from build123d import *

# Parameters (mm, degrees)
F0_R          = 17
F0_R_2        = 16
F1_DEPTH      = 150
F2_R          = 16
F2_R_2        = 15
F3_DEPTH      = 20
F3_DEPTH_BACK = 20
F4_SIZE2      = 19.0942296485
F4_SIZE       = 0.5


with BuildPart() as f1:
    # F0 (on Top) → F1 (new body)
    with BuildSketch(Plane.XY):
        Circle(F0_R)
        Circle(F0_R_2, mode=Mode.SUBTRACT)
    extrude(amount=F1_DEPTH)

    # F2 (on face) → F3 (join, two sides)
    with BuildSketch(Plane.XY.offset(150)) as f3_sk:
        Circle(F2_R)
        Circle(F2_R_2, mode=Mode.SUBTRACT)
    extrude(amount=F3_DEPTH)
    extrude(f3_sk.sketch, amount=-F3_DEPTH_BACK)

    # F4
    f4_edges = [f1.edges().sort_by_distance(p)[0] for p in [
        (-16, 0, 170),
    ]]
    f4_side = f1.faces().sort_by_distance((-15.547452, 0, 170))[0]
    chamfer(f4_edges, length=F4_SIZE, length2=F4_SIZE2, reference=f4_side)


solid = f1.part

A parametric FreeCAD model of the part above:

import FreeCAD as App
import Part
import Sketcher
from FreeCAD import Vector


def edges_at(feature, points):
    """Names of the edges that pass closest to the given points."""
    edges = feature.Shape.Edges
    near = lambda p: min(range(len(edges)), key=lambda i: edges[i].distToShape(Part.Vertex(*p))[0])
    return sorted({f"Edge{near(p) + 1}" for p in points})

doc = App.newDocument("Part")
body = doc.addObject("PartDesign::Body", "Body")

# Sketch on XY plane
sketch1 = body.newObject("Sketcher::SketchObject", "Sketch")
sketch1.AttachmentSupport = (doc.getObject("XY_Plane"), [""])
sketch1.MapMode = "FlatFace"
sketch1.addGeometry([
    Part.Circle(Vector(0, 0, 0), Vector(0, 0, 1), 17),
    Part.Circle(Vector(0, 0, 0), Vector(0, 0, 1), 16),
], False)
sketch1.addConstraint([
    Sketcher.Constraint("Coincident", 0, 3, -1, 1),
    Sketcher.Constraint("Coincident", 1, 3, -1, 1),
    Sketcher.Constraint("Diameter", 0, 34.0),
    Sketcher.Constraint("Diameter", 1, 32.0),
])
pad1 = body.newObject("PartDesign::Pad", "Pad")
pad1.Profile = sketch1
pad1.Length = 150

# Sketch on XY plane
sketch2 = body.newObject("Sketcher::SketchObject", "Sketch001")
sketch2.AttachmentSupport = (doc.getObject("XY_Plane"), [""])
sketch2.MapMode = "FlatFace"
sketch2.AttachmentOffset = App.Placement(Vector(0, 0, 150), App.Rotation())
sketch2.addGeometry([
    Part.Circle(Vector(0, 0, 0), Vector(0, 0, 1), 16),
    Part.Circle(Vector(0, 0, 0), Vector(0, 0, 1), 15),
], False)
sketch2.addConstraint([
    Sketcher.Constraint("Coincident", 0, 3, -1, 1),
    Sketcher.Constraint("Coincident", 1, 3, -1, 1),
    Sketcher.Constraint("Diameter", 0, 32.0),
    Sketcher.Constraint("Diameter", 1, 30.0),
])
pad2 = body.newObject("PartDesign::Pad", "Pad001")
pad2.Profile = sketch2
pad2.Type = "TwoLengths"
pad2.Length = 20
pad2.Length2 = 20
doc.recompute()

chamfer = body.newObject("PartDesign::Chamfer", "Chamfer")
chamfer.Base = (pad2, edges_at(pad2, [(-16, 0, 170)]))
chamfer.ChamferType = "Two distances"
chamfer.Size = 0.5
chamfer.Size2 = 19.09423
chamfer.FlipDirection = True

doc.recompute()
